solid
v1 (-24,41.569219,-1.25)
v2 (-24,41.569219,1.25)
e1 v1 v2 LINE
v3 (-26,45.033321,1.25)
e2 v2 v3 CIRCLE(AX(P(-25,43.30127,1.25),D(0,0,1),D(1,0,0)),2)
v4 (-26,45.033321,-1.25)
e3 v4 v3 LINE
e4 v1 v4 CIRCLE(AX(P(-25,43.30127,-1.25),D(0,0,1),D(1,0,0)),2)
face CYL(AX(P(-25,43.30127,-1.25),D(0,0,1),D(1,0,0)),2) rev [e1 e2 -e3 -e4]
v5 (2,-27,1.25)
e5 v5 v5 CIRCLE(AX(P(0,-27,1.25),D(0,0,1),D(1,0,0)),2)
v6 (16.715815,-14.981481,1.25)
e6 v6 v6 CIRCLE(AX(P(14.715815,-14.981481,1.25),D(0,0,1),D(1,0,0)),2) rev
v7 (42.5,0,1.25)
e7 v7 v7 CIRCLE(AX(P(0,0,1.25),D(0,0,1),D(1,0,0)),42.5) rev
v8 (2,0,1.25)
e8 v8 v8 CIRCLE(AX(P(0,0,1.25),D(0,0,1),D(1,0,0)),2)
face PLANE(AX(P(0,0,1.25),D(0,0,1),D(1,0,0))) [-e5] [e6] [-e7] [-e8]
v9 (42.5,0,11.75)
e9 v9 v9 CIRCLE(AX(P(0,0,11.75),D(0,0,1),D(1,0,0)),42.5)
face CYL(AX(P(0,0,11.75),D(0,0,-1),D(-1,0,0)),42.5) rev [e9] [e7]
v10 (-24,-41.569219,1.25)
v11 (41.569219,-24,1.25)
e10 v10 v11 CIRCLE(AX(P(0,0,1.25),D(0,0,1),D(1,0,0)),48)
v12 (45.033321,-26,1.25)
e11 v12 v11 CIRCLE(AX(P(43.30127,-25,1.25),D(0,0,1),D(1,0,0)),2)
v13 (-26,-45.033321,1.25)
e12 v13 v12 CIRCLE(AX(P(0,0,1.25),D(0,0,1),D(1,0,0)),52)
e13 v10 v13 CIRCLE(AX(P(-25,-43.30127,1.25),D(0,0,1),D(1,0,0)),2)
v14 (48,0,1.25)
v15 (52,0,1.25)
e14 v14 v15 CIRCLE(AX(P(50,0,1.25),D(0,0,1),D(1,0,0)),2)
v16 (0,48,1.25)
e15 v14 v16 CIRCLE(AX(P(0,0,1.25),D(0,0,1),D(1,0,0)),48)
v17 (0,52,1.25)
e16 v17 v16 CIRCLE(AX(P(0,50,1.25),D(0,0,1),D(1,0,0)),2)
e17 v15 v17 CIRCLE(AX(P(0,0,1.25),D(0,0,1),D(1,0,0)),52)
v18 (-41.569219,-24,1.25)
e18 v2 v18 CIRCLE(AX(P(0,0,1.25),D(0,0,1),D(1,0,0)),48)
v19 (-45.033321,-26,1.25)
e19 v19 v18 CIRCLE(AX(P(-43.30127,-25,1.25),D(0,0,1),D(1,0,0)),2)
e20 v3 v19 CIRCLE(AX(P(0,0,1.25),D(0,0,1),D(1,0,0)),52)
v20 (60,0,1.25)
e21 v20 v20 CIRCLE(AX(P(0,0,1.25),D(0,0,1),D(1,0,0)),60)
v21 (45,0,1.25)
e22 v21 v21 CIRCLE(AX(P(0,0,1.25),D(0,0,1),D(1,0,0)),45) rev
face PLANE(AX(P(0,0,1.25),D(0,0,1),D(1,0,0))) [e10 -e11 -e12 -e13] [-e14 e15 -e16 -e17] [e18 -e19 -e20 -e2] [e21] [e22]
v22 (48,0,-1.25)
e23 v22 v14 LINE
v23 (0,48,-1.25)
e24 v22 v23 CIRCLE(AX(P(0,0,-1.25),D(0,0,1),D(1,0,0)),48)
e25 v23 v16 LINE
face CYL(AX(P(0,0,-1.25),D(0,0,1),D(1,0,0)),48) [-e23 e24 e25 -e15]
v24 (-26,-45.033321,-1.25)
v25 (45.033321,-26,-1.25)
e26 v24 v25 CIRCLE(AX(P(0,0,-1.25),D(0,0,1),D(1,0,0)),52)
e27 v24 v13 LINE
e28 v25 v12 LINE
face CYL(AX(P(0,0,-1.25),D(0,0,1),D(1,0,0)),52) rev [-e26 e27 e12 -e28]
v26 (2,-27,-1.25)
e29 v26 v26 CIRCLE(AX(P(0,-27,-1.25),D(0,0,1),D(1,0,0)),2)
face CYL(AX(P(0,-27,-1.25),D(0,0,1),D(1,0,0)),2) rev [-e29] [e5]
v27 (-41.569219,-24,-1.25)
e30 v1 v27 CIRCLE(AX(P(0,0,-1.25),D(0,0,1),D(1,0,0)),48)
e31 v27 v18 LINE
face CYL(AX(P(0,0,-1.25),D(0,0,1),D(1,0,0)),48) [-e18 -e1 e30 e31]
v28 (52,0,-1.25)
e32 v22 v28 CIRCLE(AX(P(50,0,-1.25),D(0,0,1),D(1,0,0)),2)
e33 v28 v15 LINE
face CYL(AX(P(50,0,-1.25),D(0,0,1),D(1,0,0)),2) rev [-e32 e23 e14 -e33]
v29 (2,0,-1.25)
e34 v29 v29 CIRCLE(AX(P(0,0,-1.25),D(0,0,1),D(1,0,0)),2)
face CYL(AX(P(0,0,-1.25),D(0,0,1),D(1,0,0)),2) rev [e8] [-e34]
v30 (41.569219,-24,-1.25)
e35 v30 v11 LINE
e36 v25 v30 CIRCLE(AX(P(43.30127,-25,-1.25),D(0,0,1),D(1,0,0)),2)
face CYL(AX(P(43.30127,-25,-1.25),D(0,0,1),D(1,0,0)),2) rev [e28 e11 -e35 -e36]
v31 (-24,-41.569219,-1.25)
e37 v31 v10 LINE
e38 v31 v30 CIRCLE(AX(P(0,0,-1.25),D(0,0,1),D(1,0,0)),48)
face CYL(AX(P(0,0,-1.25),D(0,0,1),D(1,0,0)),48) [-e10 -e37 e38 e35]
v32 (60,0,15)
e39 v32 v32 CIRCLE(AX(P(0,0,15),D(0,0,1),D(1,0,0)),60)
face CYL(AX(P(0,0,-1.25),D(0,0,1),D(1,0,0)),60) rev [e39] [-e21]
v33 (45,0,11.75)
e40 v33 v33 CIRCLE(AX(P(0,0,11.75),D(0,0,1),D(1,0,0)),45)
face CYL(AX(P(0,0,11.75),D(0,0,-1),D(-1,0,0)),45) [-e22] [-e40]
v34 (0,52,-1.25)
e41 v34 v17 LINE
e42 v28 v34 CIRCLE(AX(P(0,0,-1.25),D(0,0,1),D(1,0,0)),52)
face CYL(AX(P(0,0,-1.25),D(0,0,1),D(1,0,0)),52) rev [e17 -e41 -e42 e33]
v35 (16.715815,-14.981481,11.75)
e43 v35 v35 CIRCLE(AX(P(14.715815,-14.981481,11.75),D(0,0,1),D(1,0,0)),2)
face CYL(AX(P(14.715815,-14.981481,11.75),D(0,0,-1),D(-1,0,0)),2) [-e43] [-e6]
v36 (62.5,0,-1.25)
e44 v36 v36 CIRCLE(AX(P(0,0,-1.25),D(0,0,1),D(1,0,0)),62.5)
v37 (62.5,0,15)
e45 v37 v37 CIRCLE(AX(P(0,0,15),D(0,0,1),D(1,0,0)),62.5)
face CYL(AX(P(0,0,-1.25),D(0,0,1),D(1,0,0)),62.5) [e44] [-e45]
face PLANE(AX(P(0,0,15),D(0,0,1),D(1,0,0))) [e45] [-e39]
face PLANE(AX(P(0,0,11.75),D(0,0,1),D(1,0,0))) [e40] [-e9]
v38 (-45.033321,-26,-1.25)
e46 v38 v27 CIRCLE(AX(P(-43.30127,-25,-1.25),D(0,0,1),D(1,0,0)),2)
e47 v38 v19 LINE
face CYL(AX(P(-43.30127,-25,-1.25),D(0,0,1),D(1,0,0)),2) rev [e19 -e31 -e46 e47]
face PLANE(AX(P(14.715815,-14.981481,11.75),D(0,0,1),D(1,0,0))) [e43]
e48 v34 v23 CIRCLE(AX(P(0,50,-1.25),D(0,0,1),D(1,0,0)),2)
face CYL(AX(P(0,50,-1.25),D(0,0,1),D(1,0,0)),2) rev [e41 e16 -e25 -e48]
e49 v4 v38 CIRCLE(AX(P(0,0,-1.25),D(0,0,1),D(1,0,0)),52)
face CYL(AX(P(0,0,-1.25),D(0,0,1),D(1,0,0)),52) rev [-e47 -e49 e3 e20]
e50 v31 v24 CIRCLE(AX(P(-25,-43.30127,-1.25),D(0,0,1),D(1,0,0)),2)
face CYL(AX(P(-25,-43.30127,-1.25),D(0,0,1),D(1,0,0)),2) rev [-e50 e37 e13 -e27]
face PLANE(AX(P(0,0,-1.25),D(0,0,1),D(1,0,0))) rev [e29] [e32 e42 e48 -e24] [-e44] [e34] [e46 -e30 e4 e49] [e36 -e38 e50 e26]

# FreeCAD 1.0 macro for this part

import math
import FreeCAD as App
import Part
import Sketcher

V = App.Vector
Q = App.Units.Quantity

doc = App.newDocument("Part")
body = doc.addObject("PartDesign::Body", "Body")

# Sketch on XY plane
sketch1 = body.newObject("Sketcher::SketchObject", "Sketch")
sketch1.AttachmentSupport = (doc.getObject("XY_Plane"), [""])
sketch1.MapMode = "FlatFace"
sketch1.addGeometry([
    Part.Circle(V(0, 0, 0), V(0, 0, 1), 60),  # 0
    Part.Circle(V(0, -27, 0), V(0, 0, 1), 2),  # 1
    Part.Circle(V(0, 0, 0), V(0, 0, 1), 2),  # 2
    Part.ArcOfCircle(Part.Circle(V(43.3, -25, 0), V(0, 0, 1), 2), math.radians(-30), math.radians(150)),  # 3
    Part.ArcOfCircle(Part.Circle(V(0, 0, 0), V(0, 0, 1), 52), math.radians(-120), math.radians(-30)),  # 4
    Part.ArcOfCircle(Part.Circle(V(-25, -43.3, 0), V(0, 0, 1), 2), math.radians(60), math.radians(240)),  # 5
    Part.ArcOfCircle(Part.Circle(V(0, 0, 0), V(0, 0, 1), 48), math.radians(-120), math.radians(-30)),  # 6
    Part.ArcOfCircle(Part.Circle(V(-43.3, -25, 0), V(0, 0, 1), 2), math.radians(-150), math.radians(30)),  # 7
    Part.ArcOfCircle(Part.Circle(V(0, 0, 0), V(0, 0, 1), 52), math.radians(120), math.radians(210)),  # 8
    Part.ArcOfCircle(Part.Circle(V(-25, 43.3, 0), V(0, 0, 1), 2), math.radians(-60), math.radians(120)),  # 9
    Part.ArcOfCircle(Part.Circle(V(0, 0, 0), V(0, 0, 1), 48), math.radians(120), math.radians(210)),  # 10
    Part.ArcOfCircle(Part.Circle(V(0, 50, 0), V(0, 0, 1), 2), math.radians(90), math.radians(270)),  # 11
    Part.ArcOfCircle(Part.Circle(V(0, 0, 0), V(0, 0, 1), 52), math.radians(0), math.radians(90)),  # 12
    Part.ArcOfCircle(Part.Circle(V(50, 0, 0), V(0, 0, 1), 2), math.radians(180), math.radians(360)),  # 13
    Part.ArcOfCircle(Part.Circle(V(0, 0, 0), V(0, 0, 1), 48), math.radians(0), math.radians(90)),  # 14
], False)
sketch1.addConstraint([
    Sketcher.Constraint("Tangent", 3, 1, 4, 2),
    Sketcher.Constraint("Tangent", 4, 1, 5, 2),
    Sketcher.Constraint("Tangent", 5, 1, 6, 1),
    Sketcher.Constraint("Tangent", 6, 2, 3, 2),
    Sketcher.Constraint("Tangent", 7, 1, 8, 2),
    Sketcher.Constraint("Tangent", 8, 1, 9, 2),
    Sketcher.Constraint("Tangent", 9, 1, 10, 1),
    Sketcher.Constraint("Tangent", 10, 2, 7, 2),
    Sketcher.Constraint("Tangent", 11, 1, 12, 2),
    Sketcher.Constraint("Tangent", 12, 1, 13, 2),
    Sketcher.Constraint("Tangent", 13, 1, 14, 1),
    Sketcher.Constraint("Tangent", 14, 2, 11, 2),
    Sketcher.Constraint("Coincident", 0, 3, -1, 1),
    Sketcher.Constraint("Coincident", 2, 3, -1, 1),
    Sketcher.Constraint("Coincident", 4, 3, -1, 1),
    Sketcher.Constraint("Coincident", 6, 3, -1, 1),
    Sketcher.Constraint("Coincident", 8, 3, -1, 1),
    Sketcher.Constraint("Coincident", 10, 3, -1, 1),
    Sketcher.Constraint("Coincident", 12, 3, -1, 1),
    Sketcher.Constraint("Coincident", 14, 3, -1, 1),
    Sketcher.Constraint("Equal", 1, 2),
    Sketcher.Constraint("Equal", 2, 3),
    Sketcher.Constraint("Equal", 5, 7),
    Sketcher.Constraint("Equal", 4, 8),
    Sketcher.Constraint("Equal", 9, 11),
    Sketcher.Constraint("Equal", 8, 12),
    Sketcher.Constraint("PointOnObject", 1, 3, -2),
    Sketcher.Constraint("PointOnObject", 11, 3, -2),
    Sketcher.Constraint("PointOnObject", 13, 3, -1),
    Sketcher.Constraint("Horizontal", 3, 3, 7, 3),
    Sketcher.Constraint("Vertical", 5, 3, 9, 3),
    Sketcher.Constraint("Diameter", 0, Q("120 mm")),
    Sketcher.Constraint("Diameter", 1, Q("4 mm")),
    Sketcher.Constraint("Radius", 4, Q("52 mm")),
    Sketcher.Constraint("DistanceY", 1, 3, -1, 1, Q("27 mm")),
    Sketcher.Constraint("DistanceY", 3, 3, -1, 1, Q("25 mm")),
    Sketcher.Constraint("DistanceX", 5, 3, -1, 1, Q("25 mm")),
])
pad1 = body.newObject("PartDesign::Pad", "Pad")
pad1.Profile = sketch1
pad1.Type = "TwoLengths"
pad1.Length = 1.25
pad1.Length2 = 1.25

# Sketch on XY plane
sketch2 = body.newObject("Sketcher::SketchObject", "Sketch001")
sketch2.AttachmentSupport = (doc.getObject("XY_Plane"), [""])
sketch2.MapMode = "FlatFace"
sketch2.addGeometry([
    Part.Circle(V(0, 0, 0), V(0, 0, 1), 45),
    Part.Circle(V(0, 0, 0), V(0, 0, 1), 42.5),
    Part.Circle(V(14.7, -15, 0), V(0, 0, 1), 2),
], False)
sketch2.addConstraint([
    Sketcher.Constraint("Coincident", 0, 3, -1, 1),
    Sketcher.Constraint("Coincident", 1, 3, -1, 1),
    Sketcher.Constraint("Diameter", 0, Q("90 mm")),
    Sketcher.Constraint("Diameter", 1, Q("85 mm")),
    Sketcher.Constraint("Diameter", 2, Q("4 mm")),
    Sketcher.Constraint("DistanceY", 2, 3, -1, 1, Q("14.981481 mm")),
    Sketcher.Constraint("DistanceX", -1, 1, 2, 3, Q("14.715815 mm")),
])
pad2 = body.newObject("PartDesign::Pad", "Pad001")
pad2.Profile = sketch2
pad2.Length = 11.75

# Sketch on XY plane
sketch3 = body.newObject("Sketcher::SketchObject", "Sketch002")
sketch3.AttachmentSupport = (doc.getObject("XY_Plane"), [""])
sketch3.MapMode = "FlatFace"
sketch3.addGeometry([
    Part.Circle(V(0, 0, 0), V(0, 0, 1), 62),
    Part.Circle(V(0, 0, 0), V(0, 0, 1), 60),
], False)
sketch3.addConstraint([
    Sketcher.Constraint("Coincident", 0, 3, -1, 1),
    Sketcher.Constraint("Coincident", 1, 3, -1, 1),
    Sketcher.Constraint("Diameter", 0, Q("125 mm")),
    Sketcher.Constraint("Diameter", 1, Q("120 mm")),
])
pad3 = body.newObject("PartDesign::Pad", "Pad002")
pad3.Profile = sketch3
pad3.Type = "TwoLengths"
pad3.Length = 15
pad3.Length2 = 1.25

doc.recompute()
